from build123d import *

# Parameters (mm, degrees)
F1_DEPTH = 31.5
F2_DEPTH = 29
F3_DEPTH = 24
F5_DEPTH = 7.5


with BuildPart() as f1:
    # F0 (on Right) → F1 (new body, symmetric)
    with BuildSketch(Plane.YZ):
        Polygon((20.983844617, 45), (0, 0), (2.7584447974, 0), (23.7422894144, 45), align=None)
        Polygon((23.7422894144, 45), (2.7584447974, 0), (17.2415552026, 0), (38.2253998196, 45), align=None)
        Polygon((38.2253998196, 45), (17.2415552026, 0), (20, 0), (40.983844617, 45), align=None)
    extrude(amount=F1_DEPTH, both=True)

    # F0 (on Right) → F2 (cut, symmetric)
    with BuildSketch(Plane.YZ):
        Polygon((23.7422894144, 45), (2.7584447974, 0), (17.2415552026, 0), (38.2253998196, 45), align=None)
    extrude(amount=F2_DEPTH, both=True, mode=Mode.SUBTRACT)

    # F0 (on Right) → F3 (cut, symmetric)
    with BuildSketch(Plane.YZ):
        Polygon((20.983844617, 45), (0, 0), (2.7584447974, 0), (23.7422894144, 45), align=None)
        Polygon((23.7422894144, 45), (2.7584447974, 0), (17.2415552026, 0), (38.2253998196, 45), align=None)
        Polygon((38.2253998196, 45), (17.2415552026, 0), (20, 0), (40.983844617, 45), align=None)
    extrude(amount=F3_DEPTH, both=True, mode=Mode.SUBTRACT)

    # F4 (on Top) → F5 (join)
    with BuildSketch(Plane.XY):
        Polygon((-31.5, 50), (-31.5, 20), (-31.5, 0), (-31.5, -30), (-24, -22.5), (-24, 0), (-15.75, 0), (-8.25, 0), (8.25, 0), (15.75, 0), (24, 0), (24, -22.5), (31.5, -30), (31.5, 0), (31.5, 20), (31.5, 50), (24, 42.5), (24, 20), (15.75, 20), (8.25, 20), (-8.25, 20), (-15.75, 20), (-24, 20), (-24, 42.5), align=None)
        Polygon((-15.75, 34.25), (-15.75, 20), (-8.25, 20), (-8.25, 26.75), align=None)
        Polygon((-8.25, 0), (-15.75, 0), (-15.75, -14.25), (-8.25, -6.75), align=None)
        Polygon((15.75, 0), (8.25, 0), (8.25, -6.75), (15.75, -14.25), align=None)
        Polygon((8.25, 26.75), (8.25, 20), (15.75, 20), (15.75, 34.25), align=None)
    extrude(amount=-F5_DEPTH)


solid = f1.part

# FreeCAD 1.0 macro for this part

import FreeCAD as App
import Part
import Sketcher
Q = App.Units.Quantity

doc = App.newDocument("Part")
body = doc.addObject("PartDesign::Body", "Body")
body.AllowCompound = True

sketch1 = body.newObject("Sketcher::SketchObject", "Sketch")
sketch1.AttachmentSupport = (doc.getObject("YZ_Plane"), [""])
sketch1.MapMode = "FlatFace"
sketch1.addGeometry(Part.LineSegment(App.Vector(20.983845, 45, 0), App.Vector(0, 0, 0)), False)
sketch1.addGeometry(Part.LineSegment(App.Vector(0, 0, 0), App.Vector(20, 0, 0)), False)
sketch1.addGeometry(Part.LineSegment(App.Vector(20, 0, 0), App.Vector(40.983845, 45, 0)), False)
sketch1.addGeometry(Part.LineSegment(App.Vector(40.983845, 45, 0), App.Vector(20.983845, 45, 0)), False)
sketch1.addConstraint(Sketcher.Constraint("Coincident", 0, 2, 1, 1))
sketch1.addConstraint(Sketcher.Constraint("Coincident", 1, 2, 2, 1))
sketch1.addConstraint(Sketcher.Constraint("Coincident", 2, 2, 3, 1))
sketch1.addConstraint(Sketcher.Constraint("Coincident", 3, 2, 0, 1))
sketch1.addConstraint(Sketcher.Constraint("Horizontal", 1))
sketch1.addConstraint(Sketcher.Constraint("Horizontal", 3))
sketch1.addConstraint(Sketcher.Constraint("Coincident", 0, 2, -1, 1))
sketch1.addConstraint(Sketcher.Constraint("Parallel", 0, 2))
sketch1.addConstraint(Sketcher.Constraint("DistanceX", 1, 1, 1, 2, Q("20 mm")))
sketch1.addConstraint(Sketcher.Constraint("Angle", 0, Q("-115 deg")))
sketch1.addConstraint(Sketcher.Constraint("DistanceY", -1, 1, 2, 2, Q("45 mm")))
pad1 = body.newObject("PartDesign::Pad", "Pad")
pad1.Profile = sketch1
pad1.Length = 63
pad1.Midplane = True

sketch2 = body.newObject("Sketcher::SketchObject", "Sketch001")
sketch2.AttachmentSupport = (doc.getObject("YZ_Plane"), [""])
sketch2.MapMode = "FlatFace"
sketch2.addGeometry(Part.LineSegment(App.Vector(23.742289, 45, 0), App.Vector(2.758445, 0, 0)), False)
sketch2.addGeometry(Part.LineSegment(App.Vector(2.758445, 0, 0), App.Vector(17.241555, 0, 0)), False)
sketch2.addGeometry(Part.LineSegment(App.Vector(17.241555, 0, 0), App.Vector(38.2254, 45, 0)), False)
sketch2.addGeometry(Part.LineSegment(App.Vector(38.2254, 45, 0), App.Vector(23.742289, 45, 0)), False)
sketch2.addConstraint(Sketcher.Constraint("Coincident", 0, 2, 1, 1))
sketch2.addConstraint(Sketcher.Constraint("Coincident", 1, 2, 2, 1))
sketch2.addConstraint(Sketcher.Constraint("Coincident", 2, 2, 3, 1))
sketch2.addConstraint(Sketcher.Constraint("Coincident", 3, 2, 0, 1))
sketch2.addConstraint(Sketcher.Constraint("Horizontal", 1))
sketch2.addConstraint(Sketcher.Constraint("Horizontal", 3))
sketch2.addConstraint(Sketcher.Constraint("PointOnObject", 0, 2, -1))
sketch2.addConstraint(Sketcher.Constraint("Parallel", 0, 2))
sketch2.addConstraint(Sketcher.Constraint("Angle", 0, Q("-115 deg")))
sketch2.addConstraint(Sketcher.Constraint("DistanceY", -1, 1, 2, 2, Q("45 mm")))
sketch2.addConstraint(Sketcher.Constraint("DistanceX", 1, 1, 1, 2, Q("14.48311 mm")))
sketch2.addConstraint(Sketcher.Constraint("DistanceX", -1, 1, 2, 2, Q("38.2254 mm")))
pocket1 = body.newObject("PartDesign::Pocket", "Pocket")
pocket1.Profile = sketch2
pocket1.Length = 58
pocket1.Midplane = True

sketch3 = body.newObject("Sketcher::SketchObject", "Sketch002")
sketch3.AttachmentSupport = (doc.getObject("YZ_Plane"), [""])
sketch3.MapMode = "FlatFace"
sketch3.addGeometry(Part.LineSegment(App.Vector(20.983845, 45, 0), App.Vector(0, 0, 0)), False)
sketch3.addGeometry(Part.LineSegment(App.Vector(0, 0, 0), App.Vector(20, 0, 0)), False)
sketch3.addGeometry(Part.LineSegment(App.Vector(20, 0, 0), App.Vector(40.983845, 45, 0)), False)
sketch3.addGeometry(Part.LineSegment(App.Vector(40.983845, 45, 0), App.Vector(20.983845, 45, 0)), False)
sketch3.addConstraint(Sketcher.Constraint("Coincident", 0, 2, 1, 1))
sketch3.addConstraint(Sketcher.Constraint("Coincident", 1, 2, 2, 1))
sketch3.addConstraint(Sketcher.Constraint("Coincident", 2, 2, 3, 1))
sketch3.addConstraint(Sketcher.Constraint("Coincident", 3, 2, 0, 1))
sketch3.addConstraint(Sketcher.Constraint("Horizontal", 1))
sketch3.addConstraint(Sketcher.Constraint("Horizontal", 3))
sketch3.addConstraint(Sketcher.Constraint("Coincident", 0, 2, -1, 1))
sketch3.addConstraint(Sketcher.Constraint("Parallel", 0, 2))
sketch3.addConstraint(Sketcher.Constraint("DistanceX", 1, 1, 1, 2, Q("20 mm")))
sketch3.addConstraint(Sketcher.Constraint("Angle", 0, Q("-115 deg")))
sketch3.addConstraint(Sketcher.Constraint("DistanceY", -1, 1, 2, 2, Q("45 mm")))
pocket2 = body.newObject("PartDesign::Pocket", "Pocket001")
pocket2.Profile = sketch3
pocket2.Length = 48
pocket2.Midplane = True

sketch4 = body.newObject("Sketcher::SketchObject", "Sketch003")
sketch4.AttachmentSupport = (doc.getObject("XY_Plane"), [""])
sketch4.MapMode = "FlatFace"
sketch4.addGeometry(Part.LineSegment(App.Vector(-31.5, 50, 0), App.Vector(-31.5, -30, 0)), False)
sketch4.addGeometry(Part.LineSegment(App.Vector(-31.5, -30, 0), App.Vector(-24, -22.5, 0)), False)
sketch4.addGeometry(Part.LineSegment(App.Vector(-24, -22.5, 0), App.Vector(-24, 0, 0)), False)
sketch4.addGeometry(Part.LineSegment(App.Vector(-24, 0, 0), App.Vector(-15.75, 0, 0)), False)
sketch4.addGeometry(Part.LineSegment(App.Vector(-15.75, 0, 0), App.Vector(-15.75, -14.25, 0)), False)
sketch4.addGeometry(Part.LineSegment(App.Vector(-15.75, -14.25, 0), App.Vector(-8.25, -6.75, 0)), False)
sketch4.addGeometry(Part.LineSegment(App.Vector(-8.25, -6.75, 0), App.Vector(-8.25, 0, 0)), False)
sketch4.addGeometry(Part.LineSegment(App.Vector(-8.25, 0, 0), App.Vector(8.25, 0, 0)), False)
sketch4.addGeometry(Part.LineSegment(App.Vector(8.25, 0, 0), App.Vector(8.25, -6.75, 0)), False)
sketch4.addGeometry(Part.LineSegment(App.Vector(8.25, -6.75, 0), App.Vector(15.75, -14.25, 0)), False)
sketch4.addGeometry(Part.LineSegment(App.Vector(15.75, -14.25, 0), App.Vector(15.75, 0, 0)), False)
sketch4.addGeometry(Part.LineSegment(App.Vector(15.75, 0, 0), App.Vector(24, 0, 0)), False)
sketch4.addGeometry(Part.LineSegment(App.Vector(24, 0, 0), App.Vector(24, -22.5, 0)), False)
sketch4.addGeometry(Part.LineSegment(App.Vector(24, -22.5, 0), App.Vector(31.5, -30, 0)), False)
sketch4.addGeometry(Part.LineSegment(App.Vector(31.5, -30, 0), App.Vector(31.5, 50, 0)), False)
sketch4.addGeometry(Part.LineSegment(App.Vector(31.5, 50, 0), App.Vector(24, 42.5, 0)), False)
sketch4.addGeometry(Part.LineSegment(App.Vector(24, 42.5, 0), App.Vector(24, 20, 0)), False)
sketch4.addGeometry(Part.LineSegment(App.Vector(24, 20, 0), App.Vector(15.75, 20, 0)), False)
sketch4.addGeometry(Part.LineSegment(App.Vector(15.75, 20, 0), App.Vector(15.75, 34.25, 0)), False)
sketch4.addGeometry(Part.LineSegment(App.Vector(15.75, 34.25, 0), App.Vector(8.25, 26.75, 0)), False)
sketch4.addGeometry(Part.LineSegment(App.Vector(8.25, 26.75, 0), App.Vector(8.25, 20, 0)), False)
sketch4.addGeometry(Part.LineSegment(App.Vector(8.25, 20, 0), App.Vector(-8.25, 20, 0)), False)
sketch4.addGeometry(Part.LineSegment(App.Vector(-8.25, 20, 0), App.Vector(-8.25, 26.75, 0)), False)
sketch4.addGeometry(Part.LineSegment(App.Vector(-8.25, 26.75, 0), App.Vector(-15.75, 34.25, 0)), False)
sketch4.addGeometry(Part.LineSegment(App.Vector(-15.75, 34.25, 0), App.Vector(-15.75, 20, 0)), False)
sketch4.addGeometry(Part.LineSegment(App.Vector(-15.75, 20, 0), App.Vector(-24, 20, 0)), False)
sketch4.addGeometry(Part.LineSegment(App.Vector(-24, 20, 0), App.Vector(-24, 42.5, 0)), False)
sketch4.addGeometry(Part.LineSegment(App.Vector(-24, 42.5, 0), App.Vector(-31.5, 50, 0)), False)
sketch4.addConstraint(Sketcher.Constraint("Coincident", 0, 2, 1, 1))
sketch4.addConstraint(Sketcher.Constraint("Coincident", 1, 2, 2, 1))
sketch4.addConstraint(Sketcher.Constraint("Coincident", 2, 2, 3, 1))
sketch4.addConstraint(Sketcher.Constraint("Coincident", 3, 2, 4, 1))
sketch4.addConstraint(Sketcher.Constraint("Coincident", 4, 2, 5, 1))
sketch4.addConstraint(Sketcher.Constraint("Coincident", 5, 2, 6, 1))
sketch4.addConstraint(Sketcher.Constraint("Coincident", 6, 2, 7, 1))
sketch4.addConstraint(Sketcher.Constraint("Coincident", 7, 2, 8, 1))
sketch4.addConstraint(Sketcher.Constraint("Coincident", 8, 2, 9, 1))
sketch4.addConstraint(Sketcher.Constraint("Coincident", 9, 2, 10, 1))
sketch4.addConstraint(Sketcher.Constraint("Coincident", 10, 2, 11, 1))
sketch4.addConstraint(Sketcher.Constraint("Coincident", 11, 2, 12, 1))
sketch4.addConstraint(Sketcher.Constraint("Coincident", 12, 2, 13, 1))
sketch4.addConstraint(Sketcher.Constraint("Coincident", 13, 2, 14, 1))
sketch4.addConstraint(Sketcher.Constraint("Coincident", 14, 2, 15, 1))
sketch4.addConstraint(Sketcher.Constraint("Coincident", 15, 2, 16, 1))
sketch4.addConstraint(Sketcher.Constraint("Coincident", 16, 2, 17, 1))
sketch4.addConstraint(Sketcher.Constraint("Coincident", 17, 2, 18, 1))
sketch4.addConstraint(Sketcher.Constraint("Coincident", 18, 2, 19, 1))
sketch4.addConstraint(Sketcher.Constraint("Coincident", 19, 2, 20, 1))
sketch4.addConstraint(Sketcher.Constraint("Coincident", 20, 2, 21, 1))
sketch4.addConstraint(Sketcher.Constraint("Coincident", 21, 2, 22, 1))
sketch4.addConstraint(Sketcher.Constraint("Coincident", 22, 2, 23, 1))
sketch4.addConstraint(Sketcher.Constraint("Coincident", 23, 2, 24, 1))
sketch4.addConstraint(Sketcher.Constraint("Coincident", 24, 2, 25, 1))
sketch4.addConstraint(Sketcher.Constraint("Coincident", 25, 2, 26, 1))
sketch4.addConstraint(Sketcher.Constraint("Coincident", 26, 2, 27, 1))
sketch4.addConstraint(Sketcher.Constraint("Coincident", 27, 2, 0, 1))
sketch4.addConstraint(Sketcher.Constraint("Vertical", 0))
sketch4.addConstraint(Sketcher.Constraint("Vertical", 2))
sketch4.addConstraint(Sketcher.Constraint("Horizontal", 3))
sketch4.addConstraint(Sketcher.Constraint("Vertical", 4))
sketch4.addConstraint(Sketcher.Constraint("Vertical", 6))
sketch4.addConstraint(Sketcher.Constraint("Horizontal", 7))
sketch4.addConstraint(Sketcher.Constraint("Vertical", 8))
sketch4.addConstraint(Sketcher.Constraint("Vertical", 10))
sketch4.addConstraint(Sketcher.Constraint("Horizontal", 11))
sketch4.addConstraint(Sketcher.Constraint("Vertical", 12))
sketch4.addConstraint(Sketcher.Constraint("Vertical", 14))
sketch4.addConstraint(Sketcher.Constraint("Vertical", 16))
sketch4.addConstraint(Sketcher.Constraint("Horizontal", 17))
sketch4.addConstraint(Sketcher.Constraint("Vertical", 18))
sketch4.addConstraint(Sketcher.Constraint("Vertical", 20))
sketch4.addConstraint(Sketcher.Constraint("Horizontal", 21))
sketch4.addConstraint(Sketcher.Constraint("Vertical", 22))
sketch4.addConstraint(Sketcher.Constraint("Vertical", 24))
sketch4.addConstraint(Sketcher.Constraint("Horizontal", 25))
sketch4.addConstraint(Sketcher.Constraint("Vertical", 26))
sketch4.addConstraint(Sketcher.Constraint("Symmetric", 6, 2, 7, 2, -1, 1))
sketch4.addConstraint(Sketcher.Constraint("Symmetric", 3, 2, 10, 2, -1, 1))
sketch4.addConstraint(Sketcher.Constraint("Symmetric", 2, 2, 11, 2, -2))
sketch4.addConstraint(Sketcher.Constraint("Symmetric", 0, 2, 13, 2, -2))
sketch4.addConstraint(Sketcher.Constraint("Symmetric", 19, 2, 22, 2, -2))
sketch4.addConstraint(Sketcher.Constraint("Symmetric", 18, 2, 23, 2, -2))
sketch4.addConstraint(Sketcher.Constraint("Symmetric", 16, 2, 25, 2, -2))
sketch4.addConstraint(Sketcher.Constraint("Parallel", 1, 5))
sketch4.addConstraint(Sketcher.Constraint("Perpendicular", 5, 9))
sketch4.addConstraint(Sketcher.Constraint("Parallel", 9, 13))
sketch4.addConstraint(Sketcher.Constraint("Perpendicular", 13, 15))
sketch4.addConstraint(Sketcher.Constraint("Parallel", 15, 19))
sketch4.addConstraint(Sketcher.Constraint("Perpendicular", 19, 23))
sketch4.addConstraint(Sketcher.Constraint("Parallel", 23, 27))
sketch4.addConstraint(Sketcher.Constraint("Horizontal", 5, 2, 8, 2))
sketch4.addConstraint(Sketcher.Constraint("Horizontal", 17, 2, 20, 2))
sketch4.addConstraint(Sketcher.Constraint("Horizontal", 15, 2, 26, 2))
sketch4.addConstraint(Sketcher.Constraint("Vertical", 12, 2, 15, 2))
sketch4.addConstraint(Sketcher.Constraint("Vertical", 10, 2, 17, 2))
sketch4.addConstraint(Sketcher.Constraint("Vertical", 8, 2, 19, 2))
sketch4.addConstraint(Sketcher.Constraint("Equal", 12, 16))
sketch4.addConstraint(Sketcher.Constraint("Equal", 10, 18))
sketch4.addConstraint(Sketcher.Constraint("Equal", 1, 5))
sketch4.addConstraint(Sketcher.Constraint("DistanceY", 0, 2, 0, 1, Q("80 mm")))
sketch4.addConstraint(Sketcher.Constraint("DistanceX", 7, 1, 7, 2, Q("16.5 mm")))
sketch4.addConstraint(Sketcher.Constraint("DistanceY", 2, 1, 2, 2, Q("22.5 mm")))
sketch4.addConstraint(Sketcher.Constraint("DistanceY", 0, 2, -1, 1, Q("30 mm")))
sketch4.addConstraint(Sketcher.Constraint("DistanceX", 1, 2, -1, 1, Q("24 mm")))
sketch4.addConstraint(Sketcher.Constraint("DistanceY", 4, 2, 4, 1, Q("14.25 mm")))
pad2 = body.newObject("PartDesign::Pad", "Pad001")
pad2.Profile = sketch4
pad2.Length = 7.5
pad2.Reversed = True

doc.recompute()
